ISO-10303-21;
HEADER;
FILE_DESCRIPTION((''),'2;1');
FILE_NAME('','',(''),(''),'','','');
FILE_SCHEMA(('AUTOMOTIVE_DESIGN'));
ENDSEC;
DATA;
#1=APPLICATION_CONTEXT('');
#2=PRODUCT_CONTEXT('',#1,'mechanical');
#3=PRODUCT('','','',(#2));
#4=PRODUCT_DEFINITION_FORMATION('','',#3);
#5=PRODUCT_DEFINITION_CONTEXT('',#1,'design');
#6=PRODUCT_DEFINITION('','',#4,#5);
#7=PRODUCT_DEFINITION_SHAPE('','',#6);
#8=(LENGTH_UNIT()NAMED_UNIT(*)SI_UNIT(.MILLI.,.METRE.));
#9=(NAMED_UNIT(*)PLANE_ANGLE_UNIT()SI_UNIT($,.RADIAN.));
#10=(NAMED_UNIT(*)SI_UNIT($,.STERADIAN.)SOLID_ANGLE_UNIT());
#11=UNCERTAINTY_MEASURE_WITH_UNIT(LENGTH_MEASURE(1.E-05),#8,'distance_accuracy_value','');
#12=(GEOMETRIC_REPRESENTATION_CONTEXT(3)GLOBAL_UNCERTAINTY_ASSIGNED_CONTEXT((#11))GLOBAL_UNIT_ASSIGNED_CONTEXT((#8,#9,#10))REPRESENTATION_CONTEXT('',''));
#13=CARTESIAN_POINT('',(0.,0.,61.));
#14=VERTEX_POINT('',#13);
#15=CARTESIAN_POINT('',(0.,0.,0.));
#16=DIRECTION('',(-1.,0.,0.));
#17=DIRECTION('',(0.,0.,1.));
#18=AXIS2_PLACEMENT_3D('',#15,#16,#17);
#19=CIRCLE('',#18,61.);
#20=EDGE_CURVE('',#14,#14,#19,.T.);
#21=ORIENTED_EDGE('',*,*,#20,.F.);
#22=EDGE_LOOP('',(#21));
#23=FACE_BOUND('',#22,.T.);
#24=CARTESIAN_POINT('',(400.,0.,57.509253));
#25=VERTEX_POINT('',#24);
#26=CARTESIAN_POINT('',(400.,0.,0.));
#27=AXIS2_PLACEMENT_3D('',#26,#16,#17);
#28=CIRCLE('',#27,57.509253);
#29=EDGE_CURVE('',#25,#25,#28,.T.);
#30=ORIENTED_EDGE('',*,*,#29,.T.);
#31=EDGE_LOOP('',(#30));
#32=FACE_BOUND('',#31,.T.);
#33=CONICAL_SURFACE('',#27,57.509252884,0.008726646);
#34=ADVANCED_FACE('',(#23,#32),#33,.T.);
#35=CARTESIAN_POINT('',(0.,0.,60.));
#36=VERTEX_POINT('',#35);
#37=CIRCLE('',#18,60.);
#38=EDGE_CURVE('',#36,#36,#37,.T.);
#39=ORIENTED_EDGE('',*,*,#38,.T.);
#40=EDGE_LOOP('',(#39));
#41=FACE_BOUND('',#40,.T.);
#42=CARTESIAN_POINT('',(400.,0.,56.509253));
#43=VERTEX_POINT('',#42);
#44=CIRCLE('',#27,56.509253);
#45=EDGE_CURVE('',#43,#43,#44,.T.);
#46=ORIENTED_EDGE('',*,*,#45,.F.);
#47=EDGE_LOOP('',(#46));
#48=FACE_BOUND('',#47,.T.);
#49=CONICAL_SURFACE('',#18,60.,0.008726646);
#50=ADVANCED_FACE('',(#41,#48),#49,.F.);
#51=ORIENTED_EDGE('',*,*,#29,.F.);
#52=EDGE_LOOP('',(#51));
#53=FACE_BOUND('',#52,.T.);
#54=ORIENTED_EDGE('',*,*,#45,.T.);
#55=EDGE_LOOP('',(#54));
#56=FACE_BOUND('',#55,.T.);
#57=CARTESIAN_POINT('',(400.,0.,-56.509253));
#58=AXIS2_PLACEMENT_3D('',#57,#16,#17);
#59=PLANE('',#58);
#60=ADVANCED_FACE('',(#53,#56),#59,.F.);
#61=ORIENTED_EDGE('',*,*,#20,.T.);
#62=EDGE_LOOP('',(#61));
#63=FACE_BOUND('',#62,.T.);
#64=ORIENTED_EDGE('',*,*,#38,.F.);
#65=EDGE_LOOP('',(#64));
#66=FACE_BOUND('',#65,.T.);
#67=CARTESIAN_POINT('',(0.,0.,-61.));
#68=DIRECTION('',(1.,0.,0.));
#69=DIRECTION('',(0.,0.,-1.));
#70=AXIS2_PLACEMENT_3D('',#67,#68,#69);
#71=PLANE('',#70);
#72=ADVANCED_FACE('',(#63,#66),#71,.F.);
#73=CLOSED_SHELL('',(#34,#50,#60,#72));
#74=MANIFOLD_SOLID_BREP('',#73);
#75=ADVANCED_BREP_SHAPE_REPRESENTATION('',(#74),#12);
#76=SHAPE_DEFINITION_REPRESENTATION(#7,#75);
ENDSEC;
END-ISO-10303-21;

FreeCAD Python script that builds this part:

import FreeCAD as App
import Part
import Sketcher
Q = App.Units.Quantity


def add_polygon(sketch, points):
    """Adds a closed chain of lines whose ends are joined by coincident constraints."""
    first, n = sketch.GeometryCount, len(points)
    for a, b in zip(points, points[1:] + points[:1]):
        sketch.addGeometry(Part.LineSegment(App.Vector(*a, 0), App.Vector(*b, 0)), False)
    for i in range(n):
        sketch.addConstraint(Sketcher.Constraint("Coincident", first + i, 2, first + (i + 1) % n, 1))

doc = App.newDocument("Part")
params = doc.addObject("Spreadsheet::Sheet", "Params")
for row, (alias, value) in enumerate([
    ("sketch1_height", "1 mm"),
    ("revolution_angle", "360 deg"),
], start=1):
    params.set(f"A{row}", alias)
    params.set(f"B{row}", "=" + value)
    params.setAlias(f"B{row}", alias)

body = doc.addObject("PartDesign::Body", "Body")

sketch1 = body.newObject("Sketcher::SketchObject", "Sketch")
sketch1.AttachmentSupport = (doc.getObject("XZ_Plane"), [""])
sketch1.MapMode = "FlatFace"
add_polygon(sketch1, [(0, -60), (400, -56.509253), (400, -57.509253), (0, -61)])
sketch1.addConstraint([
    Sketcher.Constraint("Vertical", 1),
    Sketcher.Constraint("Vertical", 3),
    Sketcher.Constraint("PointOnObject", 2, 2, -2),
    Sketcher.Constraint("Parallel", 0, 2),
    Sketcher.Constraint("DistanceY", 1, 2, 1, 1, 1.0),
    Sketcher.Constraint("DistanceX", -1, 1, 0, 2, 400.0),
    Sketcher.Constraint("DistanceY", 2, 2, -1, 1, 61.0),
    Sketcher.Constraint("Angle", 0, Q("0.5 deg")),
])
sketch1.setExpression("Constraints[8]", "Params.sketch1_height")
revolution = body.newObject("PartDesign::Revolution", "Revolution")
revolution.Profile = sketch1
revolution.ReferenceAxis = (sketch1, ["H_Axis"])
revolution.setExpression("Angle", "Params.revolution_angle")

doc.recompute()
